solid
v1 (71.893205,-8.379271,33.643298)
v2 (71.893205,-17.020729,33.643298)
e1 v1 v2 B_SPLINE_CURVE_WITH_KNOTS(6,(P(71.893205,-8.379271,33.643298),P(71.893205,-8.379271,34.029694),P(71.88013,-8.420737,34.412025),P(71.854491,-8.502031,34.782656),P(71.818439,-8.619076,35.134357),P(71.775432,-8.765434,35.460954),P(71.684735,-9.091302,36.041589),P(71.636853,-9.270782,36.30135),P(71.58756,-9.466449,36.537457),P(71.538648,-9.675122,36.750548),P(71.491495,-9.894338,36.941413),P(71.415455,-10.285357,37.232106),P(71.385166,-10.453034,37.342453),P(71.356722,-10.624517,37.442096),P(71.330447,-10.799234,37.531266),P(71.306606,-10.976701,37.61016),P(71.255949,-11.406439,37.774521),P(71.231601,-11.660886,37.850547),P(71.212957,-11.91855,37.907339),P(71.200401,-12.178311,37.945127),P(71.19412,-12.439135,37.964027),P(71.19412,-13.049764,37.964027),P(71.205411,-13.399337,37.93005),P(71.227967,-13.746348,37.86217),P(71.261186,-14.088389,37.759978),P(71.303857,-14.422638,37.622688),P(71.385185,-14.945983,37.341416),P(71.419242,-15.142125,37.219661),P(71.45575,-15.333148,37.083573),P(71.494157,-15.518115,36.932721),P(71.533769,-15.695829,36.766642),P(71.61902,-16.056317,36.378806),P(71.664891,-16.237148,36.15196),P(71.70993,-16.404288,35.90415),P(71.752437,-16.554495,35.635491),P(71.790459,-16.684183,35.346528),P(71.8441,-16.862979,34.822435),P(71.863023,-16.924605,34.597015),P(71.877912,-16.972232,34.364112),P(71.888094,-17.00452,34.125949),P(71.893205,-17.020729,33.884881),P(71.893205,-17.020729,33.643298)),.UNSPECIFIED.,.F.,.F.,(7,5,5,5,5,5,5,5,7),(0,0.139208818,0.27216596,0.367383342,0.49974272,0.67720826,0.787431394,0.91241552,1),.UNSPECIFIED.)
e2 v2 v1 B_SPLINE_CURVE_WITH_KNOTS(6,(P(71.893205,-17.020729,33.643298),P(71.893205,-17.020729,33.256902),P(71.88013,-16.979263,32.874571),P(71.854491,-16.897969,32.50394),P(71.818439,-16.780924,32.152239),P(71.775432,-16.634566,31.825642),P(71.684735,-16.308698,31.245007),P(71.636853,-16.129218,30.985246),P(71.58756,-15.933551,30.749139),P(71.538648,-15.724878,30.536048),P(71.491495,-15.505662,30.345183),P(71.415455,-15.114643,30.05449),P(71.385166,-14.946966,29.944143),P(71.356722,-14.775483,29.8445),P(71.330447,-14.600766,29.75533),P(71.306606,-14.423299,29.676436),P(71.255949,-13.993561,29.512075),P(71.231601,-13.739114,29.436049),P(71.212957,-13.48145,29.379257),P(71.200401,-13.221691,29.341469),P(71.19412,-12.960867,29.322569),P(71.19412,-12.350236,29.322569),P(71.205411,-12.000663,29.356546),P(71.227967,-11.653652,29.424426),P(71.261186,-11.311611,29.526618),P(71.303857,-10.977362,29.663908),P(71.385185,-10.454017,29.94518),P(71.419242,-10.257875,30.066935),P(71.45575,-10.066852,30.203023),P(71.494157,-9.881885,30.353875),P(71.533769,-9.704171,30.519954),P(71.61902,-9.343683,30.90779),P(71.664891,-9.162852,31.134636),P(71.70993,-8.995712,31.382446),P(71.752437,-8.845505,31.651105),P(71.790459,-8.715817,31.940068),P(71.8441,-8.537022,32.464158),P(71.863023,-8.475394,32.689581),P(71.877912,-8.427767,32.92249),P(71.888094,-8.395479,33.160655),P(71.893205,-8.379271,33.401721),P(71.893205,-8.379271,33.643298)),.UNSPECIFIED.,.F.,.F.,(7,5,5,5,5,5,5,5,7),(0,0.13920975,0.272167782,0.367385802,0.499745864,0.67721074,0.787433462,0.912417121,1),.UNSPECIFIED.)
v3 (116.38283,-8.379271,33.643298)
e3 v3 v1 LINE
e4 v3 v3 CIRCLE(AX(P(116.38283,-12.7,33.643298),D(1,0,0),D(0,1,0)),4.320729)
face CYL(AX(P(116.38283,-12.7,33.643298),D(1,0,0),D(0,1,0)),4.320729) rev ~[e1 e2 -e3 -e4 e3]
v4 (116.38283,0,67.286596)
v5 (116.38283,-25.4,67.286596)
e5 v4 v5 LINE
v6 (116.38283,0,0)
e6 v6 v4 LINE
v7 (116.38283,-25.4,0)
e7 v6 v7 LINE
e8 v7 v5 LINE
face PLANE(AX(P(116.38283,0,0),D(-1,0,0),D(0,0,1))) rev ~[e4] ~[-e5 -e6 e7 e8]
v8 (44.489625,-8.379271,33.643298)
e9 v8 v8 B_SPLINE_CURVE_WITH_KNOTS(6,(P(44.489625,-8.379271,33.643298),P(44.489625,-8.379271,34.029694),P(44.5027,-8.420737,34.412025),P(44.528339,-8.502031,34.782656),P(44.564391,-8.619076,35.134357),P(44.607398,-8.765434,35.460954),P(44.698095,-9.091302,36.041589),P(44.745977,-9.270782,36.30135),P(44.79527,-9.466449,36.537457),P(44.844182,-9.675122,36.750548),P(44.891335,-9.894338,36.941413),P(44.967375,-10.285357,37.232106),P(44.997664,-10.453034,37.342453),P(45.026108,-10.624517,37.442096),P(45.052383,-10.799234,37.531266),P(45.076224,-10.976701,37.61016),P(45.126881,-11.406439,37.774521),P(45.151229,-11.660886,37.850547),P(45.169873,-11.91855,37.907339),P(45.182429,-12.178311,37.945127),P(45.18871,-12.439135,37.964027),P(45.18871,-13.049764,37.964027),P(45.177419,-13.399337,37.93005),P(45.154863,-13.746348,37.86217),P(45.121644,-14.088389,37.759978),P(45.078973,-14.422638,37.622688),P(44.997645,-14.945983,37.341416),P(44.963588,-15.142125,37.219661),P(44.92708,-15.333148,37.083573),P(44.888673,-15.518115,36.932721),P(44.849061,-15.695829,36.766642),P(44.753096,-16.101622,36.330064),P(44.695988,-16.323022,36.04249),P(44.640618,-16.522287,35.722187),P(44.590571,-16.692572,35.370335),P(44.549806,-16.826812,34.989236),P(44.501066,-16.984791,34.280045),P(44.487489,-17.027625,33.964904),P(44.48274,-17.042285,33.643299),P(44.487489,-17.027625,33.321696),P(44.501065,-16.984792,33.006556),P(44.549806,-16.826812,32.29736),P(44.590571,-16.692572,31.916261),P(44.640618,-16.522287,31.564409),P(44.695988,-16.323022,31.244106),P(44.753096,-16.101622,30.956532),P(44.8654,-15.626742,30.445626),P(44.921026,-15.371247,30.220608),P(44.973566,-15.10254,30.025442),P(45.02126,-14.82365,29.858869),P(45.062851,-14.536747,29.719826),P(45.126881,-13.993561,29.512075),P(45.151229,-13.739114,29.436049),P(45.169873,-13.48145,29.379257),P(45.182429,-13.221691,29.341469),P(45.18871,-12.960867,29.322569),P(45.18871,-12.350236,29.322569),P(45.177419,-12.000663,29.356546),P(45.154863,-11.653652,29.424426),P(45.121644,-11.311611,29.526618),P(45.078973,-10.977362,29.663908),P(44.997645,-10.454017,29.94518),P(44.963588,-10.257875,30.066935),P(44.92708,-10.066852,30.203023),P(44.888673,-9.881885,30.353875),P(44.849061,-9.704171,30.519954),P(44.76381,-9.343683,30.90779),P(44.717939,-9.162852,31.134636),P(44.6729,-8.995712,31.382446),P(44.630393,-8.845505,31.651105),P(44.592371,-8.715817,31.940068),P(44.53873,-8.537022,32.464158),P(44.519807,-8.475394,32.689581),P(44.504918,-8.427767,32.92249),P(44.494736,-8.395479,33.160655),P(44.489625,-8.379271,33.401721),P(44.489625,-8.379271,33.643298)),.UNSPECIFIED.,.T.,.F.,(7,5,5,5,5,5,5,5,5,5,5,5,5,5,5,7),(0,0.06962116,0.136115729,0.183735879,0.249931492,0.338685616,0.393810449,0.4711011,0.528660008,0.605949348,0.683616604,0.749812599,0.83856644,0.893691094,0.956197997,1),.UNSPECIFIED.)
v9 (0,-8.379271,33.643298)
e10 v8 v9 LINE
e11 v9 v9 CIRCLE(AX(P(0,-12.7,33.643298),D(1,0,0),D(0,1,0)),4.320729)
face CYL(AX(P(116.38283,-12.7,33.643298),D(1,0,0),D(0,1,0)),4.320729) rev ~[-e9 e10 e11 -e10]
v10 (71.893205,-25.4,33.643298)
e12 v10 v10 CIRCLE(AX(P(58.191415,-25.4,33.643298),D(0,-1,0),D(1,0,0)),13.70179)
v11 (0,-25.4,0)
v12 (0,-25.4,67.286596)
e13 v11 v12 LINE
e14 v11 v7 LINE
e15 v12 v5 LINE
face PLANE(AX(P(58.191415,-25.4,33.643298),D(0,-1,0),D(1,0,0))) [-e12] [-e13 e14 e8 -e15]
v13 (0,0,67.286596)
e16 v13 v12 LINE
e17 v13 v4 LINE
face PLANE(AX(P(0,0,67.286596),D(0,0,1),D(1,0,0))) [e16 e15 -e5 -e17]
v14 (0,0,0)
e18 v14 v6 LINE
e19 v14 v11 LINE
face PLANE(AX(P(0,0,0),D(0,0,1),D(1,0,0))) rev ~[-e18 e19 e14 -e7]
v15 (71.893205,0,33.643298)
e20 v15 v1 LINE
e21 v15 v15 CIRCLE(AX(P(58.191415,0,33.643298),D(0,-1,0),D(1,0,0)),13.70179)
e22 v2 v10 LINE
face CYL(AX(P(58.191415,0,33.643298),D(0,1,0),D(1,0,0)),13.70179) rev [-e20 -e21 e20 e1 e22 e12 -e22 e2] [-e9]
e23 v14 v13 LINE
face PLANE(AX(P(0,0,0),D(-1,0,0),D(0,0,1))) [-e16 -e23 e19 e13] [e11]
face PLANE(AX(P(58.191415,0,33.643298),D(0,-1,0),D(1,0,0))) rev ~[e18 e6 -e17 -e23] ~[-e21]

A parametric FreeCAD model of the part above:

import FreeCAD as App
import Part
import Sketcher
from FreeCAD import Vector
Q = App.Units.Quantity


def add_polygon(sketch, points):
    """Adds a closed chain of lines whose ends are joined by coincident constraints."""
    first, n = sketch.GeometryCount, len(points)
    for a, b in zip(points, points[1:] + points[:1]):
        sketch.addGeometry(Part.LineSegment(App.Vector(*a, 0), App.Vector(*b, 0)), False)
    for i in range(n):
        sketch.addConstraint(Sketcher.Constraint("Coincident", first + i, 2, first + (i + 1) % n, 1))

doc = App.newDocument("Part")
body = doc.addObject("PartDesign::Body", "Body")

sketch1 = doc.addObject("Sketcher::SketchObject", "Sketch")
body.addObject(sketch1)
sketch1.AttachmentSupport = (doc.XZ_Plane, [""])
sketch1.MapMode = "FlatFace"
add_polygon(sketch1, [(0, 67), (0, 0), (116, 0), (116, 67)])
sketch1.addGeometry(Part.Circle(Vector(58, 34, 0), Vector(0, 0, 1), 14), False)
sketch1.addConstraint([
    Sketcher.Constraint("Vertical", 0),
    Sketcher.Constraint("Horizontal", 1),
    Sketcher.Constraint("Vertical", 2),
    Sketcher.Constraint("Horizontal", 3),
    Sketcher.Constraint("Coincident", 0, 2, -1, 1),
    Sketcher.Constraint("Diameter", 4, Q("27.40358 mm")),
    Sketcher.Constraint("DistanceX", 1, 1, 1, 2, Q("116.38283 mm")),
    Sketcher.Constraint("DistanceY", 0, 2, 0, 1, Q("67.286596 mm")),
    Sketcher.Constraint("DistanceX", -1, 1, 4, 3, Q("58.191415 mm")),
    Sketcher.Constraint("DistanceY", -1, 1, 4, 3, Q("33.643298 mm")),
])
pad1 = doc.addObject("PartDesign::Pad", "Pad")
body.addObject(pad1)
pad1.Profile = sketch1
pad1.Length = Q("1 in")

sketch2 = doc.addObject("Sketcher::SketchObject", "Sketch001")
body.addObject(sketch2)
sketch2.AttachmentSupport = (doc.YZ_Plane, [""])
sketch2.MapMode = "FlatFace"
sketch2.AttachmentOffset = App.Placement(Vector(0, 0, 116.38283), App.Rotation())
sketch2.addGeometry(Part.Circle(Vector(-12.7, 33.6, 0), Vector(0, 0, 1), 4.3), False)
sketch2.addConstraint([
    Sketcher.Constraint("DistanceX", 0, 3, -1, 1, Q("0.5 in")),
    Sketcher.Constraint("Diameter", 0, Q("8.641458 mm")),
    Sketcher.Constraint("DistanceY", -1, 1, 0, 3, Q("33.643298 mm")),
])
pocket1 = doc.addObject("PartDesign::Pocket", "Pocket")
body.addObject(pocket1)
pocket1.Profile = sketch2
pocket1.Length = Q("6.58 in")

doc.recompute()
